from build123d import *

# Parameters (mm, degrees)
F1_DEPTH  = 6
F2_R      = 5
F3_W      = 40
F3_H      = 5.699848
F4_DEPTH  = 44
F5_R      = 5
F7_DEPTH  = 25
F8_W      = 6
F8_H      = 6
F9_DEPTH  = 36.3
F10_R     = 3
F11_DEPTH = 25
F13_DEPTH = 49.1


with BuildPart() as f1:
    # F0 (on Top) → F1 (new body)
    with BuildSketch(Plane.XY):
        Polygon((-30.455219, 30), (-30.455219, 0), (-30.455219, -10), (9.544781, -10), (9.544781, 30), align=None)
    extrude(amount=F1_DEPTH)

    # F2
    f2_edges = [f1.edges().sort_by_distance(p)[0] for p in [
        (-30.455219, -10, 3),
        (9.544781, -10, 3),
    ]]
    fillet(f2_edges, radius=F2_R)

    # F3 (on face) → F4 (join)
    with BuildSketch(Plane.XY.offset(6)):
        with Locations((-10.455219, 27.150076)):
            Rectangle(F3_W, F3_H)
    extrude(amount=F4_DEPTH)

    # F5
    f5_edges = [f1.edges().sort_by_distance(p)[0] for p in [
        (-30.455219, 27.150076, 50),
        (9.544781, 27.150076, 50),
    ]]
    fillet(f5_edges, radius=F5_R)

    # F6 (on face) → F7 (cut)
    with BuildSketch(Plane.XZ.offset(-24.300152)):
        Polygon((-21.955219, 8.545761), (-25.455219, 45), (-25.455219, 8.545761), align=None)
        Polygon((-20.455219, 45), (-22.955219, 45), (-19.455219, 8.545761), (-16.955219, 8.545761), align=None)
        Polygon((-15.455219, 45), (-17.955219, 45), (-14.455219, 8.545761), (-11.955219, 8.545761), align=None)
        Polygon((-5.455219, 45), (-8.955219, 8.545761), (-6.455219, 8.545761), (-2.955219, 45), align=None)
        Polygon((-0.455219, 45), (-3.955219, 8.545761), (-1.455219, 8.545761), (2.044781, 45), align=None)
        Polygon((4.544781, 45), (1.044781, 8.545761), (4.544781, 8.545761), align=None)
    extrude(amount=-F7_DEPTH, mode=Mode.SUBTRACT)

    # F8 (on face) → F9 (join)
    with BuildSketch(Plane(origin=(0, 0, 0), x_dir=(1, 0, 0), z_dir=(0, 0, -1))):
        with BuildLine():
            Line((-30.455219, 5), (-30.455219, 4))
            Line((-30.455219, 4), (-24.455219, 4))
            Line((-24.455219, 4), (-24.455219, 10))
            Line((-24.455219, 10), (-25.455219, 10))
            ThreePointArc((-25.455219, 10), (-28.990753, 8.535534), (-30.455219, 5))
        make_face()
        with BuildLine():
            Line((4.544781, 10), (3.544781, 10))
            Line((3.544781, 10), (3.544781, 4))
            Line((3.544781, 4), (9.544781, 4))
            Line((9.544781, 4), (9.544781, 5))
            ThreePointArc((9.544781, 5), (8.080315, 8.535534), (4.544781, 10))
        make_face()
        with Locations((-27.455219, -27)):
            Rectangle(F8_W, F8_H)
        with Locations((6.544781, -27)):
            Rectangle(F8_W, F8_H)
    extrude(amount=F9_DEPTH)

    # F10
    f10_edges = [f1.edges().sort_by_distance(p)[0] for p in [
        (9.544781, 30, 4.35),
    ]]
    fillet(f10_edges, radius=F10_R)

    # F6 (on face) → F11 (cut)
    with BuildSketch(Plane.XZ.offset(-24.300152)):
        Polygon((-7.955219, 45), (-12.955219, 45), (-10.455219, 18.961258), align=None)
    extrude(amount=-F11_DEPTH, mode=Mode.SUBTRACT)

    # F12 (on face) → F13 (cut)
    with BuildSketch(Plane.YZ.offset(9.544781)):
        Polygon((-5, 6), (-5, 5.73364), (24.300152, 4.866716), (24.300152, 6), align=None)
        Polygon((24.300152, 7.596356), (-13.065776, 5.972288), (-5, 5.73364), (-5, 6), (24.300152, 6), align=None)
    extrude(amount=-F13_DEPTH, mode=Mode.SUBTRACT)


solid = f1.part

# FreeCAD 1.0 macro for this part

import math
import FreeCAD as App
import Part
import Sketcher


def edges_at(feature, points):
    """Names of the edges that pass closest to the given points."""
    edges = feature.Shape.Edges
    near = lambda p: min(range(len(edges)), key=lambda i: edges[i].distToShape(Part.Vertex(*p))[0])
    return sorted({f"Edge{near(p) + 1}" for p in points})


def add_polygon(sketch, points):
    """Adds a closed chain of lines whose ends are joined by coincident constraints."""
    first, n = sketch.GeometryCount, len(points)
    for a, b in zip(points, points[1:] + points[:1]):
        sketch.addGeometry(Part.LineSegment(App.Vector(*a, 0), App.Vector(*b, 0)), False)
    for i in range(n):
        sketch.addConstraint(Sketcher.Constraint("Coincident", first + i, 2, first + (i + 1) % n, 1))

doc = App.newDocument("Part")
body = doc.addObject("PartDesign::Body", "Body")

# Sketch on XY plane
sketch1 = body.newObject("Sketcher::SketchObject", "Sketch")
sketch1.AttachmentSupport = (doc.getObject("XY_Plane"), [""])
sketch1.MapMode = "FlatFace"
add_polygon(sketch1, [(-30.455219, 30), (-30.455219, -10), (9.544781, -10), (9.544781, 30)])  # lines 0-3
sketch1.addConstraint(Sketcher.Constraint("Vertical", 0))
sketch1.addConstraint(Sketcher.Constraint("Horizontal", 1))
sketch1.addConstraint(Sketcher.Constraint("Vertical", 2))
sketch1.addConstraint(Sketcher.Constraint("Horizontal", 3))
sketch1.addConstraint(Sketcher.Constraint("Equal", 3, 0))
sketch1.addConstraint(Sketcher.Constraint("DistanceX", 1, 1, 1, 2, 40.0))
sketch1.addConstraint(Sketcher.Constraint("DistanceY", 0, 2, -1, 1, 10.0))
sketch1.addConstraint(Sketcher.Constraint("DistanceX", 0, 2, -1, 1, 30.455219))
pad1 = body.newObject("PartDesign::Pad", "Pad")
pad1.Profile = sketch1
pad1.Length = 6
doc.recompute()

fillet = body.newObject("PartDesign::Fillet", "Fillet")
fillet.Base = (pad1, edges_at(pad1, [(-30.455, -10, 3), (9.545, -10, 3)]))
fillet.Radius = 5

# Sketch on XY plane
sketch2 = body.newObject("Sketcher::SketchObject", "Sketch001")
sketch2.AttachmentSupport = (doc.getObject("XY_Plane"), [""])
sketch2.MapMode = "FlatFace"
sketch2.AttachmentOffset = App.Placement(App.Vector(0, 0, 6), App.Rotation())
add_polygon(sketch2, [(-30.455219, 30), (-30.455219, 24.300152), (9.544781, 24.300152), (9.544781, 30)])  # lines 0-3
sketch2.addConstraint(Sketcher.Constraint("Vertical", 0))
sketch2.addConstraint(Sketcher.Constraint("Horizontal", 1))
sketch2.addConstraint(Sketcher.Constraint("Vertical", 2))
sketch2.addConstraint(Sketcher.Constraint("Horizontal", 3))
sketch2.addConstraint(Sketcher.Constraint("DistanceX", 1, 1, 1, 2, 40.0))
sketch2.addConstraint(Sketcher.Constraint("DistanceY", -1, 1, 2, 2, 30.0))
sketch2.addConstraint(Sketcher.Constraint("DistanceY", 0, 2, 0, 1, 5.699848))
sketch2.addConstraint(Sketcher.Constraint("DistanceX", 0, 2, -1, 1, 30.455219))
pad2 = body.newObject("PartDesign::Pad", "Pad001")
pad2.Profile = sketch2
pad2.Length = 44
doc.recompute()

fillet2 = body.newObject("PartDesign::Fillet", "Fillet001")
fillet2.Base = (pad2, edges_at(pad2, [(-30.455, 27.15, 50), (9.545, 27.15, 50)]))
fillet2.Radius = 5

# Sketch on XZ plane
sketch3 = body.newObject("Sketcher::SketchObject", "Sketch002")
sketch3.AttachmentSupport = (doc.getObject("XZ_Plane"), [""])
sketch3.MapMode = "FlatFace"
sketch3.AttachmentOffset = App.Placement(App.Vector(0, 0, -24.300152), App.Rotation())
add_polygon(sketch3, [(-21.955219, 8.545761), (-25.455219, 45), (-25.455219, 8.545761)])  # lines 0-2
add_polygon(sketch3, [(-20.455219, 45), (-22.955219, 45), (-19.455219, 8.545761), (-16.955219, 8.545761)])  # lines 3-6
add_polygon(sketch3, [(-15.455219, 45), (-17.955219, 45), (-14.455219, 8.545761), (-11.955219, 8.545761)])  # lines 7-10
add_polygon(sketch3, [(-5.455219, 45), (-8.955219, 8.545761), (-6.455219, 8.545761), (-2.955219, 45)])  # lines 11-14
add_polygon(sketch3, [(-0.455219, 45), (-3.955219, 8.545761), (-1.455219, 8.545761), (2.044781, 45)])  # lines 15-18
add_polygon(sketch3, [(4.544781, 45), (1.044781, 8.545761), (4.544781, 8.545761)])  # lines 19-21
sketch3.addConstraint(Sketcher.Constraint("Vertical", 1))
sketch3.addConstraint(Sketcher.Constraint("Horizontal", 2))
sketch3.addConstraint(Sketcher.Constraint("Horizontal", 3))
sketch3.addConstraint(Sketcher.Constraint("Horizontal", 5))
sketch3.addConstraint(Sketcher.Constraint("Horizontal", 7))
sketch3.addConstraint(Sketcher.Constraint("Horizontal", 9))
sketch3.addConstraint(Sketcher.Constraint("Horizontal", 12))
sketch3.addConstraint(Sketcher.Constraint("Horizontal", 14))
sketch3.addConstraint(Sketcher.Constraint("Horizontal", 16))
sketch3.addConstraint(Sketcher.Constraint("Horizontal", 18))
sketch3.addConstraint(Sketcher.Constraint("Horizontal", 20))
sketch3.addConstraint(Sketcher.Constraint("Vertical", 21))
sketch3.addConstraint(Sketcher.Constraint("Parallel", 0, 4))
sketch3.addConstraint(Sketcher.Constraint("Parallel", 4, 6))
sketch3.addConstraint(Sketcher.Constraint("Parallel", 6, 8))
sketch3.addConstraint(Sketcher.Constraint("Parallel", 8, 10))
sketch3.addConstraint(Sketcher.Constraint("Parallel", 11, 13))
sketch3.addConstraint(Sketcher.Constraint("Parallel", 13, 15))
sketch3.addConstraint(Sketcher.Constraint("Parallel", 15, 17))
sketch3.addConstraint(Sketcher.Constraint("Parallel", 17, 19))
sketch3.addConstraint(Sketcher.Constraint("Horizontal", 0, 2, 3, 2))
sketch3.addConstraint(Sketcher.Constraint("Horizontal", 2, 2, 4, 2))
sketch3.addConstraint(Sketcher.Constraint("Horizontal", 6, 2, 7, 2))
sketch3.addConstraint(Sketcher.Constraint("Horizontal", 5, 2, 8, 2))
sketch3.addConstraint(Sketcher.Constraint("Horizontal", 9, 2, 11, 2))
sketch3.addConstraint(Sketcher.Constraint("Horizontal", 10, 2, 13, 2))
sketch3.addConstraint(Sketcher.Constraint("Horizontal", 12, 2, 15, 2))
sketch3.addConstraint(Sketcher.Constraint("Horizontal", 14, 2, 17, 2))
sketch3.addConstraint(Sketcher.Constraint("Horizontal", 16, 2, 19, 2))
sketch3.addConstraint(Sketcher.Constraint("Horizontal", 18, 2, 21, 2))
sketch3.addConstraint(Sketcher.Constraint("Equal", 5, 7))
sketch3.addConstraint(Sketcher.Constraint("Equal", 9, 12))
sketch3.addConstraint(Sketcher.Constraint("Equal", 14, 16))
sketch3.addConstraint(Sketcher.Constraint("Equal", 2, 20))
sketch3.addConstraint(Sketcher.Constraint("DistanceX", 2, 1, 2, 2, 3.5))
sketch3.addConstraint(Sketcher.Constraint("DistanceX", 3, 2, 3, 1, 2.5))
sketch3.addConstraint(Sketcher.Constraint("DistanceY", -1, 1, 0, 2, 45.0))
sketch3.addConstraint(Sketcher.Constraint("DistanceX", 3, 2, 2, 2, 1.0))
sketch3.addConstraint(Sketcher.Constraint("DistanceX", 3, 2, 7, 2, 5.0))
sketch3.addConstraint(Sketcher.Constraint("DistanceX", 9, 2, 11, 2, 3.0))
sketch3.addConstraint(Sketcher.Constraint("DistanceX", 11, 2, 15, 2, 5.0))
sketch3.addConstraint(Sketcher.Constraint("DistanceX", 15, 2, 19, 2, 5.0))
sketch3.addConstraint(Sketcher.Constraint("DistanceY", 1, 2, 1, 1, 36.454239))
sketch3.addConstraint(Sketcher.Constraint("DistanceX", 0, 2, -1, 1, 25.455219))
pocket1 = body.newObject("PartDesign::Pocket", "Pocket")
pocket1.Profile = sketch3
pocket1.Length = 25

# Sketch on XY plane
sketch4 = body.newObject("Sketcher::SketchObject", "Sketch003")
sketch4.AttachmentSupport = (doc.getObject("XY_Plane"), [""])
sketch4.MapMode = "FlatFace"
sketch4.addGeometry(Part.LineSegment(App.Vector(-30.455219, -5, 0), App.Vector(-30.455219, -4, 0)), False)  # 0
sketch4.addGeometry(Part.LineSegment(App.Vector(-30.455219, -4, 0), App.Vector(-24.455219, -4, 0)), False)  # 1
sketch4.addGeometry(Part.LineSegment(App.Vector(-24.455219, -4, 0), App.Vector(-24.455219, -10, 0)), False)  # 2
sketch4.addGeometry(Part.LineSegment(App.Vector(-24.455219, -10, 0), App.Vector(-25.455219, -10, 0)), False)  # 3
sketch4.addGeometry(Part.ArcOfCircle(Part.Circle(App.Vector(-25.455219, -5, 0), App.Vector(0, 0, 1), 5), math.radians(179.999996), math.radians(270.000004)), False)  # 4
sketch4.addGeometry(Part.LineSegment(App.Vector(4.544781, -10, 0), App.Vector(3.544781, -10, 0)), False)  # 5
sketch4.addGeometry(Part.LineSegment(App.Vector(3.544781, -10, 0), App.Vector(3.544781, -4, 0)), False)  # 6
sketch4.addGeometry(Part.LineSegment(App.Vector(3.544781, -4, 0), App.Vector(9.544781, -4, 0)), False)  # 7
sketch4.addGeometry(Part.LineSegment(App.Vector(9.544781, -4, 0), App.Vector(9.544781, -5, 0)), False)  # 8
sketch4.addGeometry(Part.ArcOfCircle(Part.Circle(App.Vector(4.544781, -5, 0), App.Vector(0, 0, 1), 5), math.radians(-90.000004), math.radians(0.000004)), False)  # 9
add_polygon(sketch4, [(-30.455219, 24), (-30.455219, 30), (-24.455219, 30), (-24.455219, 24)])  # lines 10-13
add_polygon(sketch4, [(3.544781, 24), (3.544781, 30), (9.544781, 30), (9.544781, 24)])  # lines 14-17
sketch4.addConstraint(Sketcher.Constraint("Coincident", 0, 2, 1, 1))
sketch4.addConstraint(Sketcher.Constraint("Coincident", 1, 2, 2, 1))
sketch4.addConstraint(Sketcher.Constraint("Coincident", 2, 2, 3, 1))
sketch4.addConstraint(Sketcher.Constraint("Tangent", 3, 2, 4, 2))
sketch4.addConstraint(Sketcher.Constraint("Tangent", 4, 1, 0, 1))
sketch4.addConstraint(Sketcher.Constraint("Coincident", 5, 2, 6, 1))
sketch4.addConstraint(Sketcher.Constraint("Coincident", 6, 2, 7, 1))
sketch4.addConstraint(Sketcher.Constraint("Coincident", 7, 2, 8, 1))
sketch4.addConstraint(Sketcher.Constraint("Tangent", 8, 2, 9, 2))
sketch4.addConstraint(Sketcher.Constraint("Tangent", 9, 1, 5, 1))
sketch4.addConstraint(Sketcher.Constraint("Vertical", 0))
sketch4.addConstraint(Sketcher.Constraint("Horizontal", 1))
sketch4.addConstraint(Sketcher.Constraint("Vertical", 2))
sketch4.addConstraint(Sketcher.Constraint("Horizontal", 3))
sketch4.addConstraint(Sketcher.Constraint("Horizontal", 5))
sketch4.addConstraint(Sketcher.Constraint("Vertical", 6))
sketch4.addConstraint(Sketcher.Constraint("Horizontal", 7))
sketch4.addConstraint(Sketcher.Constraint("Vertical", 8))
sketch4.addConstraint(Sketcher.Constraint("Vertical", 10))
sketch4.addConstraint(Sketcher.Constraint("Horizontal", 11))
sketch4.addConstraint(Sketcher.Constraint("Vertical", 12))
sketch4.addConstraint(Sketcher.Constraint("Horizontal", 13))
sketch4.addConstraint(Sketcher.Constraint("Vertical", 14))
sketch4.addConstraint(Sketcher.Constraint("Horizontal", 15))
sketch4.addConstraint(Sketcher.Constraint("Vertical", 16))
sketch4.addConstraint(Sketcher.Constraint("Horizontal", 17))
sketch4.addConstraint(Sketcher.Constraint("Equal", 4, 9))
sketch4.addConstraint(Sketcher.Constraint("Horizontal", 4, 3, 9, 3))
sketch4.addConstraint(Sketcher.Constraint("Horizontal", 1, 2, 6, 2))
sketch4.addConstraint(Sketcher.Constraint("Horizontal", 11, 2, 14, 2))
sketch4.addConstraint(Sketcher.Constraint("Horizontal", 13, 2, 16, 2))
sketch4.addConstraint(Sketcher.Constraint("Vertical", 4, 1, 10, 2))
sketch4.addConstraint(Sketcher.Constraint("Vertical", 2, 2, 11, 2))
sketch4.addConstraint(Sketcher.Constraint("Vertical", 6, 2, 14, 2))
sketch4.addConstraint(Sketcher.Constraint("Vertical", 8, 2, 15, 2))
sketch4.addConstraint(Sketcher.Constraint("Equal", 3, 5))
sketch4.addConstraint(Sketcher.Constraint("Equal", 5, 0))
sketch4.addConstraint(Sketcher.Constraint("Equal", 6, 10))
sketch4.addConstraint(Sketcher.Constraint("Radius", 4, 5.0))
sketch4.addConstraint(Sketcher.Constraint("DistanceX", 1, 1, 1, 2, 6.0))
sketch4.addConstraint(Sketcher.Constraint("DistanceY", 4, 3, -1, 1, 5.0))
sketch4.addConstraint(Sketcher.Constraint("DistanceY", -1, 1, 10, 2, 30.0))
sketch4.addConstraint(Sketcher.Constraint("DistanceX", 4, 3, 9, 3, 30.000001))
sketch4.addConstraint(Sketcher.Constraint("DistanceX", 4, 3, -1, 1, 25.455219))
pad3 = body.newObject("PartDesign::Pad", "Pad002")
pad3.Profile = sketch4
pad3.Length = 36.3
pad3.Reversed = True
doc.recompute()

fillet3 = body.newObject("PartDesign::Fillet", "Fillet002")
fillet3.Base = (pad3, edges_at(pad3, [(9.545, 30, 4.35)]))
fillet3.Radius = 3

# Sketch on XZ plane
sketch5 = body.newObject("Sketcher::SketchObject", "Sketch004")
sketch5.AttachmentSupport = (doc.getObject("XZ_Plane"), [""])
sketch5.MapMode = "FlatFace"
sketch5.AttachmentOffset = App.Placement(App.Vector(0, 0, -24.300152), App.Rotation())
add_polygon(sketch5, [(-7.955219, 45), (-12.955219, 45), (-10.455219, 18.961258)])  # lines 0-2
sketch5.addConstraint(Sketcher.Constraint("Horizontal", 0))
sketch5.addConstraint(Sketcher.Constraint("Equal", 1, 2))
sketch5.addConstraint(Sketcher.Constraint("DistanceX", 0, 2, 0, 1, 5.0))
sketch5.addConstraint(Sketcher.Constraint("DistanceY", -1, 1, 0, 2, 45.0))
sketch5.addConstraint(Sketcher.Constraint("Distance", 1, 26.15848))
sketch5.addConstraint(Sketcher.Constraint("DistanceX", 0, 2, -1, 1, 12.955219))
pocket2 = body.newObject("PartDesign::Pocket", "Pocket001")
pocket2.Profile = sketch5
pocket2.Length = 25

# Sketch on YZ plane
sketch6 = body.newObject("Sketcher::SketchObject", "Sketch005")
sketch6.AttachmentSupport = (doc.getObject("YZ_Plane"), [""])
sketch6.MapMode = "FlatFace"
sketch6.AttachmentOffset = App.Placement(App.Vector(0, 0, 9.544781), App.Rotation())
add_polygon(sketch6, [(-5, 5.73364), (24.300152, 4.866716), (24.300152, 7.596356), (-13.065776, 5.972288)])  # lines 0-3
sketch6.addConstraint(Sketcher.Constraint("Vertical", 1))
sketch6.addConstraint(Sketcher.Constraint("Parallel", 0, 3))
sketch6.addConstraint(Sketcher.Constraint("DistanceX", 3, 2, -1, 1, 5.0))
sketch6.addConstraint(Sketcher.Constraint("DistanceY", 1, 1, 1, 2, 2.72964))
sketch6.addConstraint(Sketcher.Constraint("DistanceY", -1, 1, 3, 2, 5.73364))
sketch6.addConstraint(Sketcher.Constraint("DistanceY", 0, 2, 2, 2, 1.105572))
sketch6.addConstraint(Sketcher.Constraint("Distance", 0, 29.312974))
sketch6.addConstraint(Sketcher.Constraint("Distance", 2, 37.401205))
pocket3 = body.newObject("PartDesign::Pocket", "Pocket002")
pocket3.Profile = sketch6
pocket3.Length = 49.1

doc.recompute()
